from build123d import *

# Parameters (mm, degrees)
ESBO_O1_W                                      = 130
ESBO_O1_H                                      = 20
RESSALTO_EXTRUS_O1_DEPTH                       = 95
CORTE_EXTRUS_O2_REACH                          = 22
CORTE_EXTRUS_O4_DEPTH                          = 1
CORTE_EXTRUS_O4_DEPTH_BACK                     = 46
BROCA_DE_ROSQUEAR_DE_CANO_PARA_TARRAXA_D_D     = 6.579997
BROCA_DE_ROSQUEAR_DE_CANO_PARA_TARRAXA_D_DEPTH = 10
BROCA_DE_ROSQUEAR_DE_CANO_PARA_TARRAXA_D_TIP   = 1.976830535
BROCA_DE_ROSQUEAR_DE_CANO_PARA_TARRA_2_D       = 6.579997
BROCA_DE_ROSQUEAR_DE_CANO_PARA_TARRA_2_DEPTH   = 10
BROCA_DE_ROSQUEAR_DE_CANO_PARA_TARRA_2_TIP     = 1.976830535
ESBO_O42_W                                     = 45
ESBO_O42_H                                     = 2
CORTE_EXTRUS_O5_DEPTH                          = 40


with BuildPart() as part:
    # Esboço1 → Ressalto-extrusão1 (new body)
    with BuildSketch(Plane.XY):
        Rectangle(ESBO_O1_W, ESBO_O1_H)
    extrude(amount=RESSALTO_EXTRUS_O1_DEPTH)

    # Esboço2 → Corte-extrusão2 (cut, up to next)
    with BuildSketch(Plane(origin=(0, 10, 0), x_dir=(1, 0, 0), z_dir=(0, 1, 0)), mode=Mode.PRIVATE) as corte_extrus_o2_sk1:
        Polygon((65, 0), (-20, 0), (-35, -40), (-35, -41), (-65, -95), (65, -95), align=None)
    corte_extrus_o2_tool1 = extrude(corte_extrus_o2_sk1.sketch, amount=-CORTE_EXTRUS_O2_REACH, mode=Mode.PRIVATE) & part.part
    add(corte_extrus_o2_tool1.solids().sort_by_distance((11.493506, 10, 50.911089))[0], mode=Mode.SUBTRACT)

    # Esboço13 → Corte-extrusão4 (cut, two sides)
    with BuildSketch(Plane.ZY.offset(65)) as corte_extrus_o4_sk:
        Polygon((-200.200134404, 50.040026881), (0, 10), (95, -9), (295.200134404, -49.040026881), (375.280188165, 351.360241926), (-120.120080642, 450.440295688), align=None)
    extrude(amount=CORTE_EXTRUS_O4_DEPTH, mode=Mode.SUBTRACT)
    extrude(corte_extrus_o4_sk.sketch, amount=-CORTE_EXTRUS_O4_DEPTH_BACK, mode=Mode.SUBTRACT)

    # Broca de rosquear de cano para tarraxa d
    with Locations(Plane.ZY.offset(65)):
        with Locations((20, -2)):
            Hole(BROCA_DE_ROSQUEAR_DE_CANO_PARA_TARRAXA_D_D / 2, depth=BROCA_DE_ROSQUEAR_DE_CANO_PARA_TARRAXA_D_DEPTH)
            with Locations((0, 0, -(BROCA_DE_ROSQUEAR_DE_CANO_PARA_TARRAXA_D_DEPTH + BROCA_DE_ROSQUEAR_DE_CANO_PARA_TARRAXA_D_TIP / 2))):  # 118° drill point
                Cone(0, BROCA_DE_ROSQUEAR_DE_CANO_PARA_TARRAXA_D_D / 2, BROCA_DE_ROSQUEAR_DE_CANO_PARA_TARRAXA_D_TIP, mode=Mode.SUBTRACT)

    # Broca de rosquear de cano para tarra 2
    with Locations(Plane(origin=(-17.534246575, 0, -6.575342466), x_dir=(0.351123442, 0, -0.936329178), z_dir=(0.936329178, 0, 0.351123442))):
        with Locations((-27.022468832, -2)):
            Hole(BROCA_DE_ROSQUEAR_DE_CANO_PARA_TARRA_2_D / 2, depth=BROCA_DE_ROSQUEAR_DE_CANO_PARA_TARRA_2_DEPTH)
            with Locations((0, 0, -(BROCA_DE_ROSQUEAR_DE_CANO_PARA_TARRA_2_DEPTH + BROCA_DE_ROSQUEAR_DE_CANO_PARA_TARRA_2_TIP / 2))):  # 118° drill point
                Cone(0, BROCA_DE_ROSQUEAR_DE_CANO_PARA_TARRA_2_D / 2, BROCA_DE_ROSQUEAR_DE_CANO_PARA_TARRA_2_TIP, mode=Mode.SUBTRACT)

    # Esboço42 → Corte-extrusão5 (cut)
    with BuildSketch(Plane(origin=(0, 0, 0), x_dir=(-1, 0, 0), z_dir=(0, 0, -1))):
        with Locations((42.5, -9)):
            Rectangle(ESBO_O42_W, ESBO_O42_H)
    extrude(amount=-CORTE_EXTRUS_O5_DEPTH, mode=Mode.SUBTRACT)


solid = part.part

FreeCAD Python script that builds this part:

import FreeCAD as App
import Part
import Sketcher

V = App.Vector


def add_polygon(sketch, points):
    """Adds a closed chain of lines whose ends are joined by coincident constraints."""
    first, n = sketch.GeometryCount, len(points)
    for a, b in zip(points, points[1:] + points[:1]):
        sketch.addGeometry(Part.LineSegment(App.Vector(*a, 0), App.Vector(*b, 0)), False)
    for i in range(n):
        sketch.addConstraint(Sketcher.Constraint("Coincident", first + i, 2, first + (i + 1) % n, 1))

doc = App.newDocument("Part")
body = doc.addObject("PartDesign::Body", "Body")

sketch1 = body.newObject("Sketcher::SketchObject", "Sketch")
sketch1.AttachmentSupport = (doc.getObject("XY_Plane"), [""])
sketch1.MapMode = "FlatFace"
add_polygon(sketch1, [(-65, 10), (-65, -10), (65, -10), (65, 10)])
sketch1.addConstraint(Sketcher.Constraint("Vertical", 0))
sketch1.addConstraint(Sketcher.Constraint("Horizontal", 1))
sketch1.addConstraint(Sketcher.Constraint("Vertical", 2))
sketch1.addConstraint(Sketcher.Constraint("Horizontal", 3))
sketch1.addConstraint(Sketcher.Constraint("Symmetric", 0, 2, 2, 2, -1, 1))
sketch1.addConstraint(Sketcher.Constraint("DistanceX", 1, 1, 1, 2, 130.0))
sketch1.addConstraint(Sketcher.Constraint("DistanceY", 0, 2, 0, 1, 20.0))
pad1 = body.newObject("PartDesign::Pad", "Pad")
pad1.Profile = sketch1
pad1.Length = 95

sketch2 = body.newObject("Sketcher::SketchObject", "Sketch001")
sketch2.AttachmentSupport = (doc.getObject("XZ_Plane"), [""])
sketch2.MapMode = "FlatFace"
sketch2.AttachmentOffset = App.Placement(V(0, 0, -10), App.Rotation())
add_polygon(sketch2, [(65, 0), (-20, 0), (-35, 40), (-35, 41), (-65, 95), (65, 95)])
sketch2.addConstraint(Sketcher.Constraint("Horizontal", 0))
sketch2.addConstraint(Sketcher.Constraint("Vertical", 2))
sketch2.addConstraint(Sketcher.Constraint("Horizontal", 4))
sketch2.addConstraint(Sketcher.Constraint("Vertical", 5))
sketch2.addConstraint(Sketcher.Constraint("PointOnObject", 0, 2, -1))
sketch2.addConstraint(Sketcher.Constraint("DistanceX", 0, 2, 0, 1, 85.0))
sketch2.addConstraint(Sketcher.Constraint("DistanceX", 4, 1, 4, 2, 130.0))
sketch2.addConstraint(Sketcher.Constraint("DistanceY", 2, 1, 2, 2, 1.0))
sketch2.addConstraint(Sketcher.Constraint("DistanceY", 5, 2, 5, 1, 95.0))
sketch2.addConstraint(Sketcher.Constraint("DistanceX", 0, 2, -1, 1, 20.0))
sketch2.addConstraint(Sketcher.Constraint("DistanceX", 1, 2, -1, 1, 35.0))
sketch2.addConstraint(Sketcher.Constraint("DistanceY", -1, 1, 1, 2, 40.0))
pocket1 = body.newObject("PartDesign::Pocket", "Pocket")
pocket1.Profile = sketch2
pocket1.Type = "UpToFirst"
pocket1.Reversed = True

sketch3 = body.newObject("Sketcher::SketchObject", "Sketch002")
sketch3.AttachmentSupport = (doc.getObject("YZ_Plane"), [""])
sketch3.MapMode = "FlatFace"
sketch3.AttachmentOffset = App.Placement(V(0, 0, -65), App.Rotation())
add_polygon(sketch3, [(50.040027, -200.200134), (-49.040027, 295.200134), (351.360242, 375.280188), (450.440296, -120.120081)])
sketch3.addConstraint(Sketcher.Constraint("Perpendicular", 0, 1))
sketch3.addConstraint(Sketcher.Constraint("Perpendicular", 1, 2))
sketch3.addConstraint(Sketcher.Constraint("Perpendicular", 2, 3))
sketch3.addConstraint(Sketcher.Constraint("DistanceX", -1, 1, 1, 2, 351.360242))
sketch3.addConstraint(Sketcher.Constraint("DistanceY", -1, 1, 1, 2, 375.280188))
sketch3.addConstraint(Sketcher.Constraint("DistanceY", 2, 2, -1, 1, 120.120081))
sketch3.addConstraint(Sketcher.Constraint("DistanceX", 0, 2, 1, 2, 400.400269))
sketch3.addConstraint(Sketcher.Constraint("Distance", 0, 505.211128))
pocket2 = body.newObject("PartDesign::Pocket", "Pocket001")
pocket2.Profile = sketch3
pocket2.Type = "ThroughAll"
pocket2.Midplane = True

sketch4 = body.newObject("Sketcher::SketchObject", "Sketch003")
sketch4.AttachmentSupport = (doc.getObject("YZ_Plane"), [""])
sketch4.MapMode = "FlatFace"
sketch4.AttachmentOffset = App.Placement(V(0, 0, -65), App.Rotation())
sketch4.addGeometry(Part.Circle(V(-2, 20, 0), V(0, 0, 1), 3.289998), False)
sketch4.addConstraint(Sketcher.Constraint("DistanceX", 0, 3, -1, 1, 2.0))
sketch4.addConstraint(Sketcher.Constraint("DistanceY", -1, 1, 0, 3, 20.0))
sketch4.addConstraint(Sketcher.Constraint("Diameter", 0, 6.579997))
doc.recompute()
hole = body.newObject("PartDesign::Hole", "Hole")
hole.Profile = sketch4
hole.ThreadType = "None"
hole.Diameter = 6.579997
hole.DepthType = "Dimension"
hole.Depth = 10
hole.DrillPoint = "Angled"
hole.DrillPointAngle = 118
hole.Reversed = True

sketch5 = body.newObject("Sketcher::SketchObject", "Sketch004")
sketch5.Placement = App.Placement(V(-17.534247, 0, -6.575342), App.Rotation(V(0.351123442, 0, -0.936329177), V(0, 0.999999999, 0), V(0.936329177, 0, 0.351123442), "ZXY"))
sketch5.addGeometry(Part.Circle(V(-27.022469, -2, 0), V(0, 0, 1), 3.289998), False)
sketch5.addConstraint(Sketcher.Constraint("DistanceY", 0, 3, -1, 1, 2.0))
sketch5.addConstraint(Sketcher.Constraint("Diameter", 0, 6.579997))
sketch5.addConstraint(Sketcher.Constraint("DistanceX", 0, 3, -1, 1, 27.022469))
doc.recompute()
hole2 = body.newObject("PartDesign::Hole", "Hole001")
hole2.Profile = sketch5
hole2.ThreadType = "None"
hole2.Diameter = 6.579997
hole2.DepthType = "Dimension"
hole2.Depth = 10
hole2.DrillPoint = "Angled"
hole2.DrillPointAngle = 118

sketch6 = body.newObject("Sketcher::SketchObject", "Sketch005")
sketch6.AttachmentSupport = (doc.getObject("XY_Plane"), [""])
sketch6.MapMode = "FlatFace"
add_polygon(sketch6, [(-20, -8), (-20, -10), (-65, -10), (-65, -8)])
sketch6.addConstraint(Sketcher.Constraint("Vertical", 0))
sketch6.addConstraint(Sketcher.Constraint("Horizontal", 1))
sketch6.addConstraint(Sketcher.Constraint("Vertical", 2))
sketch6.addConstraint(Sketcher.Constraint("Horizontal", 3))
sketch6.addConstraint(Sketcher.Constraint("DistanceX", 1, 2, 1, 1, 45.0))
sketch6.addConstraint(Sketcher.Constraint("DistanceY", 0, 2, 0, 1, 2.0))
sketch6.addConstraint(Sketcher.Constraint("DistanceX", 0, 2, -1, 1, 20.0))
sketch6.addConstraint(Sketcher.Constraint("DistanceY", 0, 2, -1, 1, 10.0))
pocket3 = body.newObject("PartDesign::Pocket", "Pocket002")
pocket3.Profile = sketch6
pocket3.Length = 40
pocket3.Reversed = True

doc.recompute()
